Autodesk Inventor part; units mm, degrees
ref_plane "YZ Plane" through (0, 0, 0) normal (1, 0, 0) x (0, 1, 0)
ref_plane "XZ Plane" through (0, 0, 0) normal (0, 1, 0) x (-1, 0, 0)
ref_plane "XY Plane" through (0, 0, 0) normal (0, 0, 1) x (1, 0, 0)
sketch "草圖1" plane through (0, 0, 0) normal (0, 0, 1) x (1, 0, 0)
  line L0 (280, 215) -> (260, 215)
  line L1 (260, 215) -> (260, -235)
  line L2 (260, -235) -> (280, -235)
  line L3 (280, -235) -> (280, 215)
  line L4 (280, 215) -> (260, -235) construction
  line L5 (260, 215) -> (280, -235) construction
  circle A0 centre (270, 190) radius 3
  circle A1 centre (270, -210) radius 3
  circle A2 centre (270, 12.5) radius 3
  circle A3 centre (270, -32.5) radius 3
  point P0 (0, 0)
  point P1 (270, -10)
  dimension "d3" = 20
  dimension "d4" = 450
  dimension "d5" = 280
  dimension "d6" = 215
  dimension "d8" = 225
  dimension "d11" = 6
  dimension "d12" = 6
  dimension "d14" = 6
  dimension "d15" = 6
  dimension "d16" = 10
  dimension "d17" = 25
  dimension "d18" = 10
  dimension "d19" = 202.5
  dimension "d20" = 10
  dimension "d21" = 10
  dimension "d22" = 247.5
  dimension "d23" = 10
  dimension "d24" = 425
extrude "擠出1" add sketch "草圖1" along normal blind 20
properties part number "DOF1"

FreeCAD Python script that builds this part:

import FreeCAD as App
import Part
import Sketcher
from FreeCAD import Vector


def add_polygon(sketch, points):
    """Adds a closed chain of lines whose ends are joined by coincident constraints."""
    first, n = sketch.GeometryCount, len(points)
    for a, b in zip(points, points[1:] + points[:1]):
        sketch.addGeometry(Part.LineSegment(App.Vector(*a, 0), App.Vector(*b, 0)), False)
    for i in range(n):
        sketch.addConstraint(Sketcher.Constraint("Coincident", first + i, 2, first + (i + 1) % n, 1))

doc = App.newDocument("Part")
body = doc.addObject("PartDesign::Body", "Body")

# Sketch on XY plane
sketch1 = doc.addObject("Sketcher::SketchObject", "Sketch")
body.addObject(sketch1)
sketch1.AttachmentSupport = (doc.XY_Plane, [""])
sketch1.MapMode = "FlatFace"
add_polygon(sketch1, [(280, -235), (280, 215), (260, 215), (260, -235)])  # lines 0-3
sketch1.addGeometry(Part.Circle(Vector(270, -210, 0), Vector(0, 0, 1), 3), False)  # 4
sketch1.addGeometry(Part.Circle(Vector(270, -32.5, 0), Vector(0, 0, 1), 3), False)  # 5
sketch1.addGeometry(Part.Circle(Vector(270, 12.5, 0), Vector(0, 0, 1), 3), False)  # 6
sketch1.addGeometry(Part.Circle(Vector(270, 190, 0), Vector(0, 0, 1), 3), False)  # 7
sketch1.addConstraint([
    Sketcher.Constraint("Vertical", 0),
    Sketcher.Constraint("Horizontal", 1),
    Sketcher.Constraint("Vertical", 2),
    Sketcher.Constraint("Horizontal", 3),
    Sketcher.Constraint("Equal", 4, 5),
    Sketcher.Constraint("Equal", 5, 6),
    Sketcher.Constraint("Equal", 6, 7),
    Sketcher.Constraint("Vertical", 4, 3, 5, 3),
    Sketcher.Constraint("Vertical", 5, 3, 6, 3),
    Sketcher.Constraint("Vertical", 6, 3, 7, 3),
    Sketcher.Constraint("Diameter", 4, 6.0),
    Sketcher.Constraint("DistanceX", 1, 2, 1, 1, 20.0),
    Sketcher.Constraint("DistanceY", 0, 1, 0, 2, 450.0),
    Sketcher.Constraint("DistanceX", -1, 1, 0, 2, 280.0),
    Sketcher.Constraint("DistanceY", -1, 1, 0, 2, 215.0),
    Sketcher.Constraint("DistanceX", 7, 3, 0, 2, 10.0),
    Sketcher.Constraint("DistanceY", 7, 3, 0, 2, 25.0),
    Sketcher.Constraint("DistanceY", 4, 3, 0, 2, 425.0),
    Sketcher.Constraint("DistanceY", 6, 3, 0, 2, 202.5),
    Sketcher.Constraint("DistanceY", 5, 3, 0, 2, 247.5),
])
pad1 = doc.addObject("PartDesign::Pad", "Pad")
body.addObject(pad1)
pad1.Profile = sketch1
pad1.Length = 20

doc.recompute()
